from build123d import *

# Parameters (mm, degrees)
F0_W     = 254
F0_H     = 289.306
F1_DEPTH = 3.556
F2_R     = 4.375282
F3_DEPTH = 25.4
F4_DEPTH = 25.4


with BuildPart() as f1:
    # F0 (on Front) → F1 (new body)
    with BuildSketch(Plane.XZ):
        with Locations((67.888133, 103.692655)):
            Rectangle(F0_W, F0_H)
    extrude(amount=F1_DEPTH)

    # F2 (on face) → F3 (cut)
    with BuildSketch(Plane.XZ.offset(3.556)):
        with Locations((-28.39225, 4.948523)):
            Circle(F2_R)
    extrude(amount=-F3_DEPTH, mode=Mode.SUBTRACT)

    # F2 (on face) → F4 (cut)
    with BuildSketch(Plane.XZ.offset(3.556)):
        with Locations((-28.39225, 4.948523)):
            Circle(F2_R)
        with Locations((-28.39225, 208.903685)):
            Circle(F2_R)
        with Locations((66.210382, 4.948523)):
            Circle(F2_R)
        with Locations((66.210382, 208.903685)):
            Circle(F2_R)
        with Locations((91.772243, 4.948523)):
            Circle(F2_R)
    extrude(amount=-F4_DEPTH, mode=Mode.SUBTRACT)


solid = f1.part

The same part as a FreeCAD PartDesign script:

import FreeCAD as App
import Part
import Sketcher

V = App.Vector
Q = App.Units.Quantity

doc = App.newDocument("Part")
body = doc.addObject("PartDesign::Body", "Body")

sketch1 = body.newObject("Sketcher::SketchObject", "Sketch")
sketch1.AttachmentSupport = (doc.getObject("XZ_Plane"), [""])
sketch1.MapMode = "FlatFace"
sketch1.addGeometry([
    Part.LineSegment(V(-59, 248, 0), V(-59, -41, 0)),
    Part.LineSegment(V(-59, -41, 0), V(195, -41, 0)),
    Part.LineSegment(V(195, -41, 0), V(195, 248, 0)),
    Part.LineSegment(V(195, 248, 0), V(-59, 248, 0)),
], False)
sketch1.addConstraint([
    Sketcher.Constraint("Coincident", 0, 2, 1, 1),
    Sketcher.Constraint("Coincident", 1, 2, 2, 1),
    Sketcher.Constraint("Coincident", 2, 2, 3, 1),
    Sketcher.Constraint("Coincident", 3, 2, 0, 1),
    Sketcher.Constraint("Vertical", 0),
    Sketcher.Constraint("Horizontal", 1),
    Sketcher.Constraint("Vertical", 2),
    Sketcher.Constraint("Horizontal", 3),
    Sketcher.Constraint("DistanceX", 1, 1, 1, 2, Q("10 in")),
    Sketcher.Constraint("DistanceY", 0, 2, 0, 1, Q("11.39 in")),
    Sketcher.Constraint("DistanceX", 0, 2, -1, 1, Q("59.111867 mm")),
    Sketcher.Constraint("DistanceY", 0, 2, -1, 1, Q("40.960345 mm")),
])
pad1 = body.newObject("PartDesign::Pad", "Pad")
pad1.Profile = sketch1
pad1.Length = Q("0.14 in")

sketch2 = body.newObject("Sketcher::SketchObject", "Sketch001")
sketch2.AttachmentSupport = (doc.getObject("XZ_Plane"), [""])
sketch2.MapMode = "FlatFace"
sketch2.AttachmentOffset = App.Placement(V(0, 0, 0.14 * 25.4), App.Rotation())
sketch2.addGeometry(Part.Circle(V(-28.4, 4.9, 0), V(0, 0, 1), 4.4), False)
sketch2.addConstraint([
    Sketcher.Constraint("Diameter", 0, Q("8.750564 mm")),
    Sketcher.Constraint("DistanceX", 0, 3, -1, 1, Q("28.39225 mm")),
    Sketcher.Constraint("DistanceY", -1, 1, 0, 3, Q("4.948523 mm")),
])
pocket1 = body.newObject("PartDesign::Pocket", "Pocket")
pocket1.Profile = sketch2
pocket1.Length = Q("1 in")

sketch3 = body.newObject("Sketcher::SketchObject", "Sketch002")
sketch3.AttachmentSupport = (doc.getObject("XZ_Plane"), [""])
sketch3.MapMode = "FlatFace"
sketch3.AttachmentOffset = App.Placement(V(0, 0, 0.14 * 25.4), App.Rotation())
sketch3.addGeometry([
    Part.Circle(V(-28.4, 4.9, 0), V(0, 0, 1), 4.4),
    Part.Circle(V(-28.4, 208.9, 0), V(0, 0, 1), 4.4),
    Part.Circle(V(66.2, 4.9, 0), V(0, 0, 1), 4.4),
    Part.Circle(V(66.2, 208.9, 0), V(0, 0, 1), 4.4),
    Part.Circle(V(91.8, 4.9, 0), V(0, 0, 1), 4.4),
], False)
sketch3.addConstraint([
    Sketcher.Constraint("Equal", 0, 1),
    Sketcher.Constraint("Equal", 1, 2),
    Sketcher.Constraint("Equal", 2, 3),
    Sketcher.Constraint("Equal", 3, 4),
    Sketcher.Constraint("Horizontal", 0, 3, 2, 3),
    Sketcher.Constraint("Horizontal", 1, 3, 3, 3),
    Sketcher.Constraint("Horizontal", 2, 3, 4, 3),
    Sketcher.Constraint("Vertical", 0, 3, 1, 3),
    Sketcher.Constraint("Vertical", 2, 3, 3, 3),
    Sketcher.Constraint("Diameter", 0, Q("8.750564 mm")),
    Sketcher.Constraint("DistanceX", 0, 3, -1, 1, Q("28.39225 mm")),
    Sketcher.Constraint("DistanceX", -1, 1, 2, 3, Q("66.210382 mm")),
    Sketcher.Constraint("DistanceY", 0, 3, 1, 3, Q("203.955162 mm")),
    Sketcher.Constraint("DistanceX", 2, 3, 4, 3, Q("25.561861 mm")),
    Sketcher.Constraint("DistanceY", -1, 1, 0, 3, Q("4.948523 mm")),
])
pocket2 = body.newObject("PartDesign::Pocket", "Pocket001")
pocket2.Profile = sketch3
pocket2.Length = Q("1 in")

doc.recompute()
